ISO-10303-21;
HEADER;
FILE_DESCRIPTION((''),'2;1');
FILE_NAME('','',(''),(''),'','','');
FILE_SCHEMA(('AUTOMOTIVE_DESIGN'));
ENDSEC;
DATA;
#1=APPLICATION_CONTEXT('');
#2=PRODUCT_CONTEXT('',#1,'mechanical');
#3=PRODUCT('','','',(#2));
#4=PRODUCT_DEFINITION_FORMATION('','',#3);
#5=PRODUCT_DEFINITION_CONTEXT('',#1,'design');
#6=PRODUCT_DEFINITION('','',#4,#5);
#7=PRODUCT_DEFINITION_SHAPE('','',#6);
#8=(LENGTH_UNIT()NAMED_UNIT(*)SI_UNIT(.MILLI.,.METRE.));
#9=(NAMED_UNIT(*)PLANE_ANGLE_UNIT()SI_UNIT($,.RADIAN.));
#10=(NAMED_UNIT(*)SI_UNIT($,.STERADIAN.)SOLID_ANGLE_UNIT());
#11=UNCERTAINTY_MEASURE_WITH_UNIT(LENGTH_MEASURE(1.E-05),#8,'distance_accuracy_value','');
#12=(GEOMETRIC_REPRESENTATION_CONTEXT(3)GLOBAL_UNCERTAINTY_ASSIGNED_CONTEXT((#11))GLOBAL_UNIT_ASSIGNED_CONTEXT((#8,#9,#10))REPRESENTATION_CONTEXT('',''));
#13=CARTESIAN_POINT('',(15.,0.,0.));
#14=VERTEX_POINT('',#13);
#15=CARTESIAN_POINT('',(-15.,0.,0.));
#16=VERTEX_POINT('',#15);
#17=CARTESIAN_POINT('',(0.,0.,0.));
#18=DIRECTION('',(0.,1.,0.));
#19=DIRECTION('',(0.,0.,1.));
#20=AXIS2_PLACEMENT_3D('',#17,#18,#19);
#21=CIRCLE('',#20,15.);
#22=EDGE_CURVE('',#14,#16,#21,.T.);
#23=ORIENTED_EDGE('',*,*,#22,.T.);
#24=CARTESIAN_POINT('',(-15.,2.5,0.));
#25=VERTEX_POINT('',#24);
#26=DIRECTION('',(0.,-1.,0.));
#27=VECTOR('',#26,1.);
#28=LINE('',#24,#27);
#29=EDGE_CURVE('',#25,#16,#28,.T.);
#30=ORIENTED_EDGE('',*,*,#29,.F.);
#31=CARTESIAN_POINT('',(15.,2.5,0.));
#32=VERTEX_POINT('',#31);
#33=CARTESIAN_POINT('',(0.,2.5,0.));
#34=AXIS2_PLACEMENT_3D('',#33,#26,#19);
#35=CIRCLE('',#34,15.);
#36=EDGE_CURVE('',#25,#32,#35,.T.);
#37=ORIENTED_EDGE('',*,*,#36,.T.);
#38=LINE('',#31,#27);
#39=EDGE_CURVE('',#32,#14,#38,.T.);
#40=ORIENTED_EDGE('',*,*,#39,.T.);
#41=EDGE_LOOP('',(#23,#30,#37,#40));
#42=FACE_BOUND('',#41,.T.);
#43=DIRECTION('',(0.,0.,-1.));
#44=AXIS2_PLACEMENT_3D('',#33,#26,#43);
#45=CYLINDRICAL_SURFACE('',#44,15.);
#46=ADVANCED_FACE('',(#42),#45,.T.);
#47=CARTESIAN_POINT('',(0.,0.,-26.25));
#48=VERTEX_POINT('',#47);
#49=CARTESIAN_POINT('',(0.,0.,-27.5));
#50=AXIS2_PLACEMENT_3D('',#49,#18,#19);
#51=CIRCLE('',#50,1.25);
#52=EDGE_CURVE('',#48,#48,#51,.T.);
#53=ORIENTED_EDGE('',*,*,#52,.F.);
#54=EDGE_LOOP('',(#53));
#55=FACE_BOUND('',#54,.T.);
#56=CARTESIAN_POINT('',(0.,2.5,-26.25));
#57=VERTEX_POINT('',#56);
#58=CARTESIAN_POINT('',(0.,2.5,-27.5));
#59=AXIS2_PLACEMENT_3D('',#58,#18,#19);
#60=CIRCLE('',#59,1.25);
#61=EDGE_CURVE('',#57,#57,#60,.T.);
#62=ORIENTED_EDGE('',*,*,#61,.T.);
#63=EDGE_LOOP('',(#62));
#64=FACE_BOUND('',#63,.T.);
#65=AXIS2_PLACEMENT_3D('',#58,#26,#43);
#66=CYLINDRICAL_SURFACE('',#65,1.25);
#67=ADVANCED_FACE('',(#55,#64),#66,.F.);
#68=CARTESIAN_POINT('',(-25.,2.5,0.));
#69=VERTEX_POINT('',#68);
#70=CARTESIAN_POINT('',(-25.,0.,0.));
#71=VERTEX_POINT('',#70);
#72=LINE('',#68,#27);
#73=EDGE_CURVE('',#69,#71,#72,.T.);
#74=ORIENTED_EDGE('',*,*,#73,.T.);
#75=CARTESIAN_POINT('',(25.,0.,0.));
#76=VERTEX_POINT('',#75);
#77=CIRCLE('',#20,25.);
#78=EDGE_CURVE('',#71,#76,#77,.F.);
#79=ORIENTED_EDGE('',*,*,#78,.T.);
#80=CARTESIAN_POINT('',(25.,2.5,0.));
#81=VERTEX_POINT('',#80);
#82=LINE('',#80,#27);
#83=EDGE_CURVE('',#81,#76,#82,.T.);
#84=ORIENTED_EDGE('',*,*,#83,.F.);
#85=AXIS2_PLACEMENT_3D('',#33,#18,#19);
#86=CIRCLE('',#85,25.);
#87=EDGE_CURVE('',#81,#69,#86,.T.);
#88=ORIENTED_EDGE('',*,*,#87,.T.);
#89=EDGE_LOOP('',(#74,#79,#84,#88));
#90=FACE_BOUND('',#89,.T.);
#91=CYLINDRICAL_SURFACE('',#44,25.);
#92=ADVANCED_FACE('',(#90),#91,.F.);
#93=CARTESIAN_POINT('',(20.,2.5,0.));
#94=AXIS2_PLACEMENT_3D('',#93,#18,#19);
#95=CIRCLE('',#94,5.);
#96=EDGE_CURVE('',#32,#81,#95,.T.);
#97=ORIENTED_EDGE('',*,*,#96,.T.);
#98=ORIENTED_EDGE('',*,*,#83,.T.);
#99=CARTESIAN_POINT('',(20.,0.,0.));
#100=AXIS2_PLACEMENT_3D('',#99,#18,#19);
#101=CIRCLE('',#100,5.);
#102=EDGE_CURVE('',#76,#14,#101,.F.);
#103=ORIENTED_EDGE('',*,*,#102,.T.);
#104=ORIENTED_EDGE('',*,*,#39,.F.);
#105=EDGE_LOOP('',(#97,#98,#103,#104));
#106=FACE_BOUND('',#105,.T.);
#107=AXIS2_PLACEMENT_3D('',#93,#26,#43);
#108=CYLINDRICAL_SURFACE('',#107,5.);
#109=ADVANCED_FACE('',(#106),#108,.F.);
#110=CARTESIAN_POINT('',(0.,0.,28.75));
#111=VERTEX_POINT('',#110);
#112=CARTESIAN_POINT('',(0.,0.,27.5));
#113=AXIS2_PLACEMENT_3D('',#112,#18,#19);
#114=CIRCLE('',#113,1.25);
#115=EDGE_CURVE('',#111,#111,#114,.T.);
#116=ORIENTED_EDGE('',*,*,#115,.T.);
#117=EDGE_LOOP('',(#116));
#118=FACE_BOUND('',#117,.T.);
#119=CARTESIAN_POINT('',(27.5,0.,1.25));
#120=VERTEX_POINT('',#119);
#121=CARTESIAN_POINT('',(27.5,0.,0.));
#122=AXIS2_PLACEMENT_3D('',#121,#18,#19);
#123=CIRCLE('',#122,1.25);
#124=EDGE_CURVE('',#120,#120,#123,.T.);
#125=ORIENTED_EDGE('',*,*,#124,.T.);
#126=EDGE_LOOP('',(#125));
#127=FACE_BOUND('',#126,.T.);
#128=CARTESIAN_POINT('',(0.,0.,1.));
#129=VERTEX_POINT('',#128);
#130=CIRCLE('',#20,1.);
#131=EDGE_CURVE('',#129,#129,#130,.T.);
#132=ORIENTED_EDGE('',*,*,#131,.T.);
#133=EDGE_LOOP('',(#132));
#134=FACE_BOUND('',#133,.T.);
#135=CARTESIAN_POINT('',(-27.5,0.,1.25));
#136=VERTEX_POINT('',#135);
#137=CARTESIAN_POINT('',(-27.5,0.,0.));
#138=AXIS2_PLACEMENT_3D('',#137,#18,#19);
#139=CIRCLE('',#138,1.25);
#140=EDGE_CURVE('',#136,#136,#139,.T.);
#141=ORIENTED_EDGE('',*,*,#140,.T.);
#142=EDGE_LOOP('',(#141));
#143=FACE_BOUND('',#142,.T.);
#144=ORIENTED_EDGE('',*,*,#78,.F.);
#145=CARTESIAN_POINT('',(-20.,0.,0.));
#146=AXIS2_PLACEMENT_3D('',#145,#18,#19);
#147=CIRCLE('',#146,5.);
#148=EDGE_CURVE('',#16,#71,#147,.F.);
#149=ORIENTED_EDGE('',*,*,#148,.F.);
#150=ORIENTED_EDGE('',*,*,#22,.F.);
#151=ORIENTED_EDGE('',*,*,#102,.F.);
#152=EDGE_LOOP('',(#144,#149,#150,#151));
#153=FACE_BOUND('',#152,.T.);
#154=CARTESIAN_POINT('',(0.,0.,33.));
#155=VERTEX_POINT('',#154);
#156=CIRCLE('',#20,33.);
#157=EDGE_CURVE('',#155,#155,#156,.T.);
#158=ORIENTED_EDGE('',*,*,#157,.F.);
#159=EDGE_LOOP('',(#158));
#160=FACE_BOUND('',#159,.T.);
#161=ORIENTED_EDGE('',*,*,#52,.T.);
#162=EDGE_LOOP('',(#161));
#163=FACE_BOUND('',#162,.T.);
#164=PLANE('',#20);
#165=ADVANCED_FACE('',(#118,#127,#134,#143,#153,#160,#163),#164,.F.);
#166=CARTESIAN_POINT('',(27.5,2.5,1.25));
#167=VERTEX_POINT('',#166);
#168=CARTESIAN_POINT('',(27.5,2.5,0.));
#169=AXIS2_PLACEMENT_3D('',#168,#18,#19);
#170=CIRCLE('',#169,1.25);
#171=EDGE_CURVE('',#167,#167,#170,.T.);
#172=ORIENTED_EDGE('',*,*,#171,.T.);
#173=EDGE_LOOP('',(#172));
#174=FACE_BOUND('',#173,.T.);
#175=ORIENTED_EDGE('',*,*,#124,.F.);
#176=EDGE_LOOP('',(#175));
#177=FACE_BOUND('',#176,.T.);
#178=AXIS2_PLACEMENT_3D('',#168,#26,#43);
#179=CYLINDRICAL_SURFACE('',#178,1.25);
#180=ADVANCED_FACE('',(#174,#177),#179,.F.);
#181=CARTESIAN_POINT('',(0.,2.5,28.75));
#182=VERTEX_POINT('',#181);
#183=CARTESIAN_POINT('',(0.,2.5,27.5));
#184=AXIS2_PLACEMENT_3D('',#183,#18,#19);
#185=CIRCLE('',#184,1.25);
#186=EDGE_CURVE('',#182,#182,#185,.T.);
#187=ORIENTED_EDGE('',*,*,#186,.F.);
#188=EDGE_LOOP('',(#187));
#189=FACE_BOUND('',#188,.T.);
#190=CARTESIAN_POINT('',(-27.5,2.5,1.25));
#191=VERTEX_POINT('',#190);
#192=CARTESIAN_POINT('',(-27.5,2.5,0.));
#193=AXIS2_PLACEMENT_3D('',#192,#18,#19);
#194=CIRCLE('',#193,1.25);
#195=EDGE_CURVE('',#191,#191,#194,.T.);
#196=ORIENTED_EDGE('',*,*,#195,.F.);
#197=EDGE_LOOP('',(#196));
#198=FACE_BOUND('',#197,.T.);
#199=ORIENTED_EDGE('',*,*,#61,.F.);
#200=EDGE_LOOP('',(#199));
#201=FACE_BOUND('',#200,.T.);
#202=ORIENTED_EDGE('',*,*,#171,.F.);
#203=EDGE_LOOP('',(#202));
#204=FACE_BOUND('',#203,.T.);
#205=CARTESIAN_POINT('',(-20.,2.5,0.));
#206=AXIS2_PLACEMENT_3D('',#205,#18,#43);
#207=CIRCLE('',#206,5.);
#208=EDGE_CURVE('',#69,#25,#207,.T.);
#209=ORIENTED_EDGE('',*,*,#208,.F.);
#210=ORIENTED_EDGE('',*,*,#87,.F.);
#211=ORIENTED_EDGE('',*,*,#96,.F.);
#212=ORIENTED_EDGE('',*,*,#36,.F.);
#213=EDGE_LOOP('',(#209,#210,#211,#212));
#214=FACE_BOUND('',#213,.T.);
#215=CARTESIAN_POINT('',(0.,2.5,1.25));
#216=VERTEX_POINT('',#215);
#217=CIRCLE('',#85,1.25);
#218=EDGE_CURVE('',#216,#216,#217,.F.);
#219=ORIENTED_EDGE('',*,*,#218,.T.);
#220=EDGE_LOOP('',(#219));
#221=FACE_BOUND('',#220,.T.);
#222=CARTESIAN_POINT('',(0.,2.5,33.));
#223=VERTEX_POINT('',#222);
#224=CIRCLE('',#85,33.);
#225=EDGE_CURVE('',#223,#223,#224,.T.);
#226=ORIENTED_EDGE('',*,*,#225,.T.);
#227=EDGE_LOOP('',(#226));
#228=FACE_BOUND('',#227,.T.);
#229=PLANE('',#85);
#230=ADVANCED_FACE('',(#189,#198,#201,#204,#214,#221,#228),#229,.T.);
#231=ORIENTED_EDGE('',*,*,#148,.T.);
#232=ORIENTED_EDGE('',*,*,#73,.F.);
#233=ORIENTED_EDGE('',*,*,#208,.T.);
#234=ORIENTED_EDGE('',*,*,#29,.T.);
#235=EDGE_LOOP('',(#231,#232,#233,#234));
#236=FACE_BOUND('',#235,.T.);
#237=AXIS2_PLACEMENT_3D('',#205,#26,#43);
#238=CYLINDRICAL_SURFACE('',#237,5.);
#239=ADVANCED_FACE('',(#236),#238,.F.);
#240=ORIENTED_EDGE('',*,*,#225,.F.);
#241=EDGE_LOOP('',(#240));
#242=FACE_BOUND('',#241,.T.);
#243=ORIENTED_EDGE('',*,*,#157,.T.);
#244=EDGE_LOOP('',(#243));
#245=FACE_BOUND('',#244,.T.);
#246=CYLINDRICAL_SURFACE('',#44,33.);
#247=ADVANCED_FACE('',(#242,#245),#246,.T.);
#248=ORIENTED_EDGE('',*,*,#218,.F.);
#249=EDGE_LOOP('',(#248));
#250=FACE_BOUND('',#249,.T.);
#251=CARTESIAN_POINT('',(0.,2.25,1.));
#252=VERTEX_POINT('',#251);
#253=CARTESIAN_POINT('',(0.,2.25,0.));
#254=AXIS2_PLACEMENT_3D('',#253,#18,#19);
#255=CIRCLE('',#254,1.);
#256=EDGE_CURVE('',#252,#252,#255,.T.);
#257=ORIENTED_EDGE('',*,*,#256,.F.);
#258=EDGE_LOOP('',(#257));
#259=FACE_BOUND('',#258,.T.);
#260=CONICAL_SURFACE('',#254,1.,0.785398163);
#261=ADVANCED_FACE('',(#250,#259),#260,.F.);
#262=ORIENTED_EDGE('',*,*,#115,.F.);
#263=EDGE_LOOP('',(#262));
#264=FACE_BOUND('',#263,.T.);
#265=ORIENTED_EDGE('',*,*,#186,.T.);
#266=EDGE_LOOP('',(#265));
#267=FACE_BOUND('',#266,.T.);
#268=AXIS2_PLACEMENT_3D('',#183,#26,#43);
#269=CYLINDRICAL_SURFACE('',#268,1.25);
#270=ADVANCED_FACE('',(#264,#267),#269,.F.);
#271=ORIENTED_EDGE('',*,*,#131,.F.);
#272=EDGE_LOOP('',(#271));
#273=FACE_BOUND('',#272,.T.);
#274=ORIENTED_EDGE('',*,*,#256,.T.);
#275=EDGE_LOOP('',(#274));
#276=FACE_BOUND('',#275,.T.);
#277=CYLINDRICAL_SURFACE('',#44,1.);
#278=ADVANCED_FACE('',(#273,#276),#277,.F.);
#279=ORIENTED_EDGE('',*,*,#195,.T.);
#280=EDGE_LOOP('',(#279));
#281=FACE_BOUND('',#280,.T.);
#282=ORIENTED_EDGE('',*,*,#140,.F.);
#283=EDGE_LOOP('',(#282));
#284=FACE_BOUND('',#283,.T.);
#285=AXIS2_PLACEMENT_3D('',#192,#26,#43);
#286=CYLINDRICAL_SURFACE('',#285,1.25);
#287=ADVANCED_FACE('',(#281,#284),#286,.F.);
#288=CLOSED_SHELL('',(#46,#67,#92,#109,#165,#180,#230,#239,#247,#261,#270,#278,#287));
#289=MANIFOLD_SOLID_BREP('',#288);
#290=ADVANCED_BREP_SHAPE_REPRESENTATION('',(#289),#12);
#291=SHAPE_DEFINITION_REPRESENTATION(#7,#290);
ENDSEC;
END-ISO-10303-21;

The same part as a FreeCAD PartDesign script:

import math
import FreeCAD as App
import Part
import Sketcher
from FreeCAD import Vector


def edges_at(feature, points):
    """Names of the edges that pass closest to the given points."""
    edges = feature.Shape.Edges
    near = lambda p: min(range(len(edges)), key=lambda i: edges[i].distToShape(Part.Vertex(*p))[0])
    return sorted({f"Edge{near(p) + 1}" for p in points})

doc = App.newDocument("Part")
body = doc.addObject("PartDesign::Body", "Body")

sketch1 = doc.addObject("Sketcher::SketchObject", "Sketch")
body.addObject(sketch1)
sketch1.AttachmentSupport = (doc.XZ_Plane, [""])
sketch1.MapMode = "FlatFace"
sketch1.addGeometry(Part.Circle(Vector(0, 0, 0), Vector(0, 0, 1), 33), False)
sketch1.addGeometry(Part.Circle(Vector(0, 27.5, 0), Vector(0, 0, 1), 1.2), False)
sketch1.addGeometry(Part.Circle(Vector(-27.5, 0, 0), Vector(0, 0, 1), 1.2), False)
sketch1.addGeometry(Part.Circle(Vector(0, 0, 0), Vector(0, 0, 1), 1), False)
sketch1.addGeometry(Part.Circle(Vector(27.5, 0, 0), Vector(0, 0, 1), 1.2), False)
sketch1.addGeometry(Part.Circle(Vector(0, -27.5, 0), Vector(0, 0, 1), 1.2), False)
sketch1.addConstraint(Sketcher.Constraint("Coincident", 0, 3, -1, 1))
sketch1.addConstraint(Sketcher.Constraint("Coincident", 3, 3, -1, 1))
sketch1.addConstraint(Sketcher.Constraint("Equal", 1, 2))
sketch1.addConstraint(Sketcher.Constraint("Equal", 2, 4))
sketch1.addConstraint(Sketcher.Constraint("Equal", 4, 5))
sketch1.addConstraint(Sketcher.Constraint("Symmetric", 2, 3, 4, 3, -1, 1))
sketch1.addConstraint(Sketcher.Constraint("Symmetric", 1, 3, 5, 3, -1, 1))
sketch1.addConstraint(Sketcher.Constraint("PointOnObject", 1, 3, -2))
sketch1.addConstraint(Sketcher.Constraint("PointOnObject", 2, 3, -1))
sketch1.addConstraint(Sketcher.Constraint("Diameter", 0, 66.0))
sketch1.addConstraint(Sketcher.Constraint("Diameter", 3, 2.0))
sketch1.addConstraint(Sketcher.Constraint("Diameter", 1, 2.5))
sketch1.addConstraint(Sketcher.Constraint("DistanceX", 2, 3, 4, 3, 55.0))
sketch1.addConstraint(Sketcher.Constraint("DistanceY", 5, 3, 1, 3, 55.0))
pad1 = doc.addObject("PartDesign::Pad", "Pad")
body.addObject(pad1)
pad1.Profile = sketch1
pad1.Length = 2.5
pad1.Reversed = True

sketch2 = doc.addObject("Sketcher::SketchObject", "Sketch001")
body.addObject(sketch2)
sketch2.AttachmentSupport = (doc.XZ_Plane, [""])
sketch2.MapMode = "FlatFace"
sketch2.addGeometry(Part.ArcOfCircle(Part.Circle(Vector(0, 0, 0), Vector(0, 0, 1), 25), math.radians(180), math.radians(360)), False)
sketch2.addGeometry(Part.ArcOfCircle(Part.Circle(Vector(-20, 0, 0), Vector(0, 0, 1), 5), math.radians(0), math.radians(180)), False)
sketch2.addGeometry(Part.ArcOfCircle(Part.Circle(Vector(0, 0, 0), Vector(0, 0, 1), 15), math.radians(180), math.radians(360)), False)
sketch2.addGeometry(Part.ArcOfCircle(Part.Circle(Vector(20, 0, 0), Vector(0, 0, 1), 5), math.radians(0), math.radians(180)), False)
sketch2.addConstraint(Sketcher.Constraint("Tangent", 0, 1, 1, 2))
sketch2.addConstraint(Sketcher.Constraint("Tangent", 1, 1, 2, 1))
sketch2.addConstraint(Sketcher.Constraint("Tangent", 2, 2, 3, 2))
sketch2.addConstraint(Sketcher.Constraint("Tangent", 3, 1, 0, 2))
sketch2.addConstraint(Sketcher.Constraint("Coincident", 0, 3, -1, 1))
sketch2.addConstraint(Sketcher.Constraint("Coincident", 2, 3, -1, 1))
sketch2.addConstraint(Sketcher.Constraint("PointOnObject", 1, 3, -1))
sketch2.addConstraint(Sketcher.Constraint("PointOnObject", 3, 3, -1))
sketch2.addConstraint(Sketcher.Constraint("Radius", 0, 25.0))
sketch2.addConstraint(Sketcher.Constraint("Radius", 1, 5.0))
pocket1 = doc.addObject("PartDesign::Pocket", "Pocket")
body.addObject(pocket1)
pocket1.Profile = sketch2
pocket1.Type = "ThroughAll"
pocket1.Midplane = True
doc.recompute()

chamfer = doc.addObject("PartDesign::Chamfer", "Chamfer")
body.addObject(chamfer)
chamfer.Base = (pocket1, edges_at(pocket1, [(-1, 2.5, 0)]))
chamfer.Size = 0.25

doc.recompute()
